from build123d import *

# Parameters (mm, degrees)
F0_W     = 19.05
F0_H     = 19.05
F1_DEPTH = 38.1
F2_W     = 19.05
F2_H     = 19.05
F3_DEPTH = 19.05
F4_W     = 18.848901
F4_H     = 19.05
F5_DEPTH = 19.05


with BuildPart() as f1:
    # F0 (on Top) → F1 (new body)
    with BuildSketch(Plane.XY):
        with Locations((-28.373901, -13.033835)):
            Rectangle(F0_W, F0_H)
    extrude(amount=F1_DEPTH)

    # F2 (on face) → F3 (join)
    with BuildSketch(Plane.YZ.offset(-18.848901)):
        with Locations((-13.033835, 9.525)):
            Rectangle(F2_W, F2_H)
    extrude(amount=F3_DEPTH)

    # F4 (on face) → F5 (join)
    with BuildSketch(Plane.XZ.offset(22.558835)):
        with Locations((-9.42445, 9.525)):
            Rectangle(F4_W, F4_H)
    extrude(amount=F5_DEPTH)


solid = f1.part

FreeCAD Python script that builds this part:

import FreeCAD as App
import Part
import Sketcher
Q = App.Units.Quantity

doc = App.newDocument("Part")
params = doc.addObject("Spreadsheet::Sheet", "Params")
for row, (alias, value) in enumerate([
    ("sketch1_width", "0.75 in"),
    ("pad1_length", "1.5 in"),
    ("sketch2_width", "0.75 in"),
    ("pad2_length", "0.75 in"),
    ("sketch3_height", "0.75 in"),
    ("pad3_length", "0.75 in"),
], start=1):
    params.set(f"A{row}", alias)
    params.set(f"B{row}", "=" + value)
    params.setAlias(f"B{row}", alias)

body = doc.addObject("PartDesign::Body", "Body")

# Sketch on XY plane
sketch1 = body.newObject("Sketcher::SketchObject", "Sketch")
sketch1.AttachmentSupport = (doc.getObject("XY_Plane"), [""])
sketch1.MapMode = "FlatFace"
sketch1.addGeometry(Part.LineSegment(App.Vector(-38, -4, 0), App.Vector(-38, -23, 0)), False)
sketch1.addGeometry(Part.LineSegment(App.Vector(-38, -23, 0), App.Vector(-19, -23, 0)), False)
sketch1.addGeometry(Part.LineSegment(App.Vector(-19, -23, 0), App.Vector(-19, -4, 0)), False)
sketch1.addGeometry(Part.LineSegment(App.Vector(-19, -4, 0), App.Vector(-38, -4, 0)), False)
sketch1.addConstraint(Sketcher.Constraint("Coincident", 0, 2, 1, 1))
sketch1.addConstraint(Sketcher.Constraint("Coincident", 1, 2, 2, 1))
sketch1.addConstraint(Sketcher.Constraint("Coincident", 2, 2, 3, 1))
sketch1.addConstraint(Sketcher.Constraint("Coincident", 3, 2, 0, 1))
sketch1.addConstraint(Sketcher.Constraint("Vertical", 0))
sketch1.addConstraint(Sketcher.Constraint("Horizontal", 1))
sketch1.addConstraint(Sketcher.Constraint("Vertical", 2))
sketch1.addConstraint(Sketcher.Constraint("Horizontal", 3))
sketch1.addConstraint(Sketcher.Constraint("Equal", 3, 0))
sketch1.addConstraint(Sketcher.Constraint("DistanceX", 1, 1, 1, 2, Q("0.75 in")))
sketch1.addConstraint(Sketcher.Constraint("DistanceX", 0, 2, -1, 1, Q("37.898901 mm")))
sketch1.addConstraint(Sketcher.Constraint("DistanceY", 0, 2, -1, 1, Q("22.558835 mm")))
sketch1.setExpression("Constraints[9]", "Params.sketch1_width")
pad1 = body.newObject("PartDesign::Pad", "Pad")
pad1.Profile = sketch1
pad1.setExpression("Length", "Params.pad1_length")

# Sketch on YZ plane
sketch2 = body.newObject("Sketcher::SketchObject", "Sketch001")
sketch2.AttachmentSupport = (doc.getObject("YZ_Plane"), [""])
sketch2.MapMode = "FlatFace"
sketch2.AttachmentOffset = App.Placement(App.Vector(0, 0, -18.848901), App.Rotation())
sketch2.addGeometry(Part.LineSegment(App.Vector(-23, 19, 0), App.Vector(-23, 0, 0)), False)
sketch2.addGeometry(Part.LineSegment(App.Vector(-23, 0, 0), App.Vector(-4, 0, 0)), False)
sketch2.addGeometry(Part.LineSegment(App.Vector(-4, 0, 0), App.Vector(-4, 19, 0)), False)
sketch2.addGeometry(Part.LineSegment(App.Vector(-4, 19, 0), App.Vector(-23, 19, 0)), False)
sketch2.addConstraint(Sketcher.Constraint("Coincident", 0, 2, 1, 1))
sketch2.addConstraint(Sketcher.Constraint("Coincident", 1, 2, 2, 1))
sketch2.addConstraint(Sketcher.Constraint("Coincident", 2, 2, 3, 1))
sketch2.addConstraint(Sketcher.Constraint("Coincident", 3, 2, 0, 1))
sketch2.addConstraint(Sketcher.Constraint("Vertical", 0))
sketch2.addConstraint(Sketcher.Constraint("Horizontal", 1))
sketch2.addConstraint(Sketcher.Constraint("Vertical", 2))
sketch2.addConstraint(Sketcher.Constraint("Horizontal", 3))
sketch2.addConstraint(Sketcher.Constraint("PointOnObject", 0, 2, -1))
sketch2.addConstraint(Sketcher.Constraint("Equal", 3, 0))
sketch2.addConstraint(Sketcher.Constraint("DistanceX", 1, 1, 1, 2, Q("0.75 in")))
sketch2.addConstraint(Sketcher.Constraint("DistanceX", 0, 2, -1, 1, Q("22.558835 mm")))
sketch2.setExpression("Constraints[10]", "Params.sketch2_width")
pad2 = body.newObject("PartDesign::Pad", "Pad001")
pad2.Profile = sketch2
pad2.setExpression("Length", "Params.pad2_length")

# Sketch on XZ plane
sketch3 = body.newObject("Sketcher::SketchObject", "Sketch002")
sketch3.AttachmentSupport = (doc.getObject("XZ_Plane"), [""])
sketch3.MapMode = "FlatFace"
sketch3.AttachmentOffset = App.Placement(App.Vector(0, 0, 22.558835), App.Rotation())
sketch3.addGeometry(Part.LineSegment(App.Vector(-19, 19, 0), App.Vector(-19, 0, 0)), False)
sketch3.addGeometry(Part.LineSegment(App.Vector(-19, 0, 0), App.Vector(0, 0, 0)), False)
sketch3.addGeometry(Part.LineSegment(App.Vector(0, 0, 0), App.Vector(0, 19, 0)), False)
sketch3.addGeometry(Part.LineSegment(App.Vector(0, 19, 0), App.Vector(-19, 19, 0)), False)
sketch3.addConstraint(Sketcher.Constraint("Coincident", 0, 2, 1, 1))
sketch3.addConstraint(Sketcher.Constraint("Coincident", 1, 2, 2, 1))
sketch3.addConstraint(Sketcher.Constraint("Coincident", 2, 2, 3, 1))
sketch3.addConstraint(Sketcher.Constraint("Coincident", 3, 2, 0, 1))
sketch3.addConstraint(Sketcher.Constraint("Vertical", 0))
sketch3.addConstraint(Sketcher.Constraint("Horizontal", 1))
sketch3.addConstraint(Sketcher.Constraint("Vertical", 2))
sketch3.addConstraint(Sketcher.Constraint("Horizontal", 3))
sketch3.addConstraint(Sketcher.Constraint("Coincident", 1, 2, -1, 1))
sketch3.addConstraint(Sketcher.Constraint("DistanceY", 0, 2, 0, 1, Q("0.75 in")))
sketch3.addConstraint(Sketcher.Constraint("DistanceX", 1, 1, 1, 2, Q("18.848901 mm")))
sketch3.setExpression("Constraints[9]", "Params.sketch3_height")
pad3 = body.newObject("PartDesign::Pad", "Pad002")
pad3.Profile = sketch3
pad3.setExpression("Length", "Params.pad3_length")

doc.recompute()
